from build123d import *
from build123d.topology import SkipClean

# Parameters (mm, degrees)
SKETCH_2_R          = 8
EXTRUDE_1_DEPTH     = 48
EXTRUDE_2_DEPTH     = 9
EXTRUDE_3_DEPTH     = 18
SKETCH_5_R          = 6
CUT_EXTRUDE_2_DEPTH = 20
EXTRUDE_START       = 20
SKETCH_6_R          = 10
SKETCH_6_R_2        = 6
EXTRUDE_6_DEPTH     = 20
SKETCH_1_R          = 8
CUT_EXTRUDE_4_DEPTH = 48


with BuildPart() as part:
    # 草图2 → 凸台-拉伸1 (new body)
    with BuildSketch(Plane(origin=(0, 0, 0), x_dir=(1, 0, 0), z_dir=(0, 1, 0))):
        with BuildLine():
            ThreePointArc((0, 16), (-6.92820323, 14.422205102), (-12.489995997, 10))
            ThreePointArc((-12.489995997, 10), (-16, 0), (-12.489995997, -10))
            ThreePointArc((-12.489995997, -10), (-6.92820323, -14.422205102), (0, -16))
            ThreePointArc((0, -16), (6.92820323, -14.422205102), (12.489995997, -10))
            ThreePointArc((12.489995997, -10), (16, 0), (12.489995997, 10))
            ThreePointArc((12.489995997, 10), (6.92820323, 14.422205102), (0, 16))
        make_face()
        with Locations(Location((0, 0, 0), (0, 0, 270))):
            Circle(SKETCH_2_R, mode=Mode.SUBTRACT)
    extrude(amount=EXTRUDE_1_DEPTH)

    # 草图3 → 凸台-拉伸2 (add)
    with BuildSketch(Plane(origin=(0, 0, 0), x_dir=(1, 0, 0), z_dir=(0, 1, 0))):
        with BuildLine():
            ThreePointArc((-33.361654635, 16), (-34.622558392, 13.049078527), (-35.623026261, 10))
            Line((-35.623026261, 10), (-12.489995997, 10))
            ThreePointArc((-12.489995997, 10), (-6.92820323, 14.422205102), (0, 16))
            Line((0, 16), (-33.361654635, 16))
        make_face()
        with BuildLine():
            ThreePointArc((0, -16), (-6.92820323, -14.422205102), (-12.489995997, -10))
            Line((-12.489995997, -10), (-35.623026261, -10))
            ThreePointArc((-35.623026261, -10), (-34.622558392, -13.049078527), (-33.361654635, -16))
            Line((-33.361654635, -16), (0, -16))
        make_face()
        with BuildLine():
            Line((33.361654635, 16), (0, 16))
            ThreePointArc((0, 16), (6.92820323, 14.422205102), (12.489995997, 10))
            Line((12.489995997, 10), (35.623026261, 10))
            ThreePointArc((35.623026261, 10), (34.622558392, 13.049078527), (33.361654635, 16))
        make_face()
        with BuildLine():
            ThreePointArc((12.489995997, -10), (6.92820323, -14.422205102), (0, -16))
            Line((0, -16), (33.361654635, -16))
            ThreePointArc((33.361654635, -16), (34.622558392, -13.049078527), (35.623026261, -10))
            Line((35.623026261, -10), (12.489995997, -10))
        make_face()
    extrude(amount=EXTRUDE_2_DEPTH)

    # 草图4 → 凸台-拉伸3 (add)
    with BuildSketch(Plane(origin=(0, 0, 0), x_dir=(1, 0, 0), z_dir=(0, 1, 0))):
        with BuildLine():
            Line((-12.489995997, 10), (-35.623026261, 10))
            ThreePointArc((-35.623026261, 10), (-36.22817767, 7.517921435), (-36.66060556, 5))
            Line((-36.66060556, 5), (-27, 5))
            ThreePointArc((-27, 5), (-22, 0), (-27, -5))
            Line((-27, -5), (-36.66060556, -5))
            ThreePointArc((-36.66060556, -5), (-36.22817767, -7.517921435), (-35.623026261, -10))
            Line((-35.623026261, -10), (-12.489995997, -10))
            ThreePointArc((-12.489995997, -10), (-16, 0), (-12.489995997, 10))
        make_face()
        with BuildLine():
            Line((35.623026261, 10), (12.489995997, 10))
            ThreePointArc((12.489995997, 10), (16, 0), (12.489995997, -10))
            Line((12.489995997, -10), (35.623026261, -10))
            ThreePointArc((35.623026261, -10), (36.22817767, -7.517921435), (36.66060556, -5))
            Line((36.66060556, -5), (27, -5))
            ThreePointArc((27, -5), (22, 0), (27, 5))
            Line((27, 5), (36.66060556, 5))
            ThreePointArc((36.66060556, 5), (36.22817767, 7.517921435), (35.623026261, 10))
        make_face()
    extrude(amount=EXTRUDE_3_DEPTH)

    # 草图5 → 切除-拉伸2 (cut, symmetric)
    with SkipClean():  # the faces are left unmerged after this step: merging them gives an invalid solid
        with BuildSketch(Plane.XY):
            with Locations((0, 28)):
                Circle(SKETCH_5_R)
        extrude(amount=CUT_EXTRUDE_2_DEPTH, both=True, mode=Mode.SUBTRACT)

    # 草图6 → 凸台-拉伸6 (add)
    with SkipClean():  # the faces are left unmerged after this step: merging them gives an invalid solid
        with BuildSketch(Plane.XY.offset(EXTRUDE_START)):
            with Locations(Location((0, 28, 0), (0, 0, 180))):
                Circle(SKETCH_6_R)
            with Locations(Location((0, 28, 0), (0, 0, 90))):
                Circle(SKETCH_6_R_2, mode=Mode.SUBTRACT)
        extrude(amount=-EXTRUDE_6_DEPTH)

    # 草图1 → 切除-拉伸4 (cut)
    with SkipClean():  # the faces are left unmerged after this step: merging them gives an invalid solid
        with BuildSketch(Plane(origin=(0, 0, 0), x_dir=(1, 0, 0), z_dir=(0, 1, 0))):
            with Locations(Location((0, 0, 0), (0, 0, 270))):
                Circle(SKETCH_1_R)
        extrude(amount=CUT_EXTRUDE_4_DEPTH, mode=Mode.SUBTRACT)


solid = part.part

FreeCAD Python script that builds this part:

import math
import FreeCAD as App
import Part
import Sketcher

V = App.Vector

doc = App.newDocument("Part")
body = doc.addObject("PartDesign::Body", "Body")

# Sketch on XZ plane
sketch1 = doc.addObject("Sketcher::SketchObject", "Sketch")
body.addObject(sketch1)
sketch1.AttachmentSupport = (doc.XZ_Plane, [""])
sketch1.MapMode = "FlatFace"
sketch1.addGeometry([
    Part.ArcOfCircle(Part.Circle(V(0, 0, 0), V(0, 0, 1), 16), math.radians(-141), math.radians(-90)),  # 0
    Part.ArcOfCircle(Part.Circle(V(0, 0, 0), V(0, 0, 1), 16), math.radians(141), math.radians(219)),  # 1
    Part.ArcOfCircle(Part.Circle(V(0, 0, 0), V(0, 0, 1), 16), math.radians(90), math.radians(141)),  # 2
    Part.ArcOfCircle(Part.Circle(V(0, 0, 0), V(0, 0, 1), 16), math.radians(39), math.radians(90)),  # 3
    Part.ArcOfCircle(Part.Circle(V(0, 0, 0), V(0, 0, 1), 16), math.radians(-39), math.radians(39)),  # 4
    Part.ArcOfCircle(Part.Circle(V(0, 0, 0), V(0, 0, 1), 16), math.radians(-90), math.radians(-39)),  # 5
    Part.Circle(V(0, 0, 0), V(0, 0, 1), 8),  # 6
], False)
sketch1.addConstraint([
    Sketcher.Constraint("Tangent", 0, 1, 1, 2),
    Sketcher.Constraint("Tangent", 1, 1, 2, 2),
    Sketcher.Constraint("Tangent", 2, 1, 3, 2),
    Sketcher.Constraint("Tangent", 3, 1, 4, 2),
    Sketcher.Constraint("Tangent", 4, 1, 5, 2),
    Sketcher.Constraint("Tangent", 5, 1, 0, 2),
    Sketcher.Constraint("Coincident", 0, 3, -1, 1),
    Sketcher.Constraint("Coincident", 2, 3, -1, 1),
    Sketcher.Constraint("Coincident", 6, 3, -1, 1),
    Sketcher.Constraint("Equal", 2, 3),
    Sketcher.Constraint("PointOnObject", 2, 1, -2),
    Sketcher.Constraint("PointOnObject", 5, 1, -2),
    Sketcher.Constraint("Horizontal", 1, 1, 3, 1),
    Sketcher.Constraint("Horizontal", 0, 1, 4, 1),
    Sketcher.Constraint("Vertical", 0, 1, 1, 1),
    Sketcher.Constraint("Diameter", 6, 16.0),
    Sketcher.Constraint("Radius", 0, 16.0),
    Sketcher.Constraint("DistanceY", 0, 1, -1, 1, 10.0),
])
pad1 = doc.addObject("PartDesign::Pad", "Pad")
body.addObject(pad1)
pad1.Profile = sketch1
pad1.Length = 48
pad1.Reversed = True

# Sketch on XZ plane
sketch2 = doc.addObject("Sketcher::SketchObject", "Sketch001")
body.addObject(sketch2)
sketch2.AttachmentSupport = (doc.XZ_Plane, [""])
sketch2.MapMode = "FlatFace"
sketch2.addGeometry([
    Part.ArcOfCircle(Part.Circle(V(0, 0, 0), V(0, 0, 1), 37), math.radians(-164.32), math.radians(-154.38)),  # 0
    Part.LineSegment(V(-36, -10, 0), V(-12, -10, 0)),  # 1
    Part.ArcOfCircle(Part.Circle(V(0, 0, 0), V(0, 0, 1), 16), math.radians(-141), math.radians(-90)),  # 2
    Part.LineSegment(V(0, -16, 0), V(-33, -16, 0)),  # 3
    Part.ArcOfCircle(Part.Circle(V(0, 0, 0), V(0, 0, 1), 16), math.radians(90), math.radians(141)),  # 4
    Part.LineSegment(V(-12, 10, 0), V(-36, 10, 0)),  # 5
    Part.ArcOfCircle(Part.Circle(V(0, 0, 0), V(0, 0, 1), 37), math.radians(154.38), math.radians(164.32)),  # 6
    Part.LineSegment(V(-33, 16, 0), V(0, 16, 0)),  # 7
    Part.LineSegment(V(33, -16, 0), V(0, -16, 0)),  # 8
    Part.ArcOfCircle(Part.Circle(V(0, 0, 0), V(0, 0, 1), 16), math.radians(-90), math.radians(-39)),  # 9
    Part.LineSegment(V(12, -10, 0), V(36, -10, 0)),  # 10
    Part.ArcOfCircle(Part.Circle(V(0, 0, 0), V(0, 0, 1), 37), math.radians(-25.62), math.radians(-15.68)),  # 11
    Part.ArcOfCircle(Part.Circle(V(0, 0, 0), V(0, 0, 1), 16), math.radians(39), math.radians(90)),  # 12
    Part.LineSegment(V(0, 16, 0), V(33, 16, 0)),  # 13
    Part.ArcOfCircle(Part.Circle(V(0, 0, 0), V(0, 0, 1), 37), math.radians(15.68), math.radians(25.62)),  # 14
    Part.LineSegment(V(36, 10, 0), V(12, 10, 0)),  # 15
], False)
sketch2.addConstraint([
    Sketcher.Constraint("Coincident", 0, 1, 1, 1),
    Sketcher.Constraint("Coincident", 1, 2, 2, 1),
    Sketcher.Constraint("Tangent", 2, 2, 3, 1),
    Sketcher.Constraint("Coincident", 3, 2, 0, 2),
    Sketcher.Constraint("Coincident", 4, 2, 5, 1),
    Sketcher.Constraint("Coincident", 5, 2, 6, 2),
    Sketcher.Constraint("Coincident", 6, 1, 7, 1),
    Sketcher.Constraint("Tangent", 7, 2, 4, 1),
    Sketcher.Constraint("Tangent", 8, 2, 9, 1),
    Sketcher.Constraint("Coincident", 9, 2, 10, 1),
    Sketcher.Constraint("Coincident", 10, 2, 11, 2),
    Sketcher.Constraint("Coincident", 11, 1, 8, 1),
    Sketcher.Constraint("Tangent", 12, 2, 13, 1),
    Sketcher.Constraint("Coincident", 13, 2, 14, 2),
    Sketcher.Constraint("Coincident", 14, 1, 15, 1),
    Sketcher.Constraint("Coincident", 15, 2, 12, 1),
    Sketcher.Constraint("Horizontal", 1),
    Sketcher.Constraint("Horizontal", 3),
    Sketcher.Constraint("Horizontal", 5),
    Sketcher.Constraint("Horizontal", 7),
    Sketcher.Constraint("Horizontal", 8),
    Sketcher.Constraint("Horizontal", 10),
    Sketcher.Constraint("Horizontal", 13),
    Sketcher.Constraint("Horizontal", 15),
    Sketcher.Constraint("Coincident", 0, 3, -1, 1),
    Sketcher.Constraint("Coincident", 2, 3, -1, 1),
    Sketcher.Constraint("Coincident", 4, 3, -1, 1),
    Sketcher.Constraint("Coincident", 6, 3, -1, 1),
    Sketcher.Constraint("Coincident", 9, 3, -1, 1),
    Sketcher.Constraint("Coincident", 11, 3, -1, 1),
    Sketcher.Constraint("Coincident", 12, 3, -1, 1),
    Sketcher.Constraint("Coincident", 14, 3, -1, 1),
    Sketcher.Constraint("Equal", 2, 4),
    Sketcher.Constraint("Equal", 0, 6),
    Sketcher.Constraint("Equal", 4, 9),
    Sketcher.Constraint("Equal", 6, 11),
    Sketcher.Constraint("Equal", 9, 12),
    Sketcher.Constraint("Equal", 11, 14),
    Sketcher.Constraint("Horizontal", 1, 2, 9, 2),
    Sketcher.Constraint("Horizontal", 5, 2, 14, 1),
    Sketcher.Constraint("Vertical", 1, 2, 4, 2),
    Sketcher.Constraint("Radius", 0, 37.0),
    Sketcher.Constraint("Radius", 2, 16.0),
    Sketcher.Constraint("DistanceY", 0, 1, -1, 1, 10.0),
])
pad2 = doc.addObject("PartDesign::Pad", "Pad001")
body.addObject(pad2)
pad2.Profile = sketch2
pad2.Length = 9
pad2.Reversed = True

# Sketch on XZ plane
sketch3 = doc.addObject("Sketcher::SketchObject", "Sketch002")
body.addObject(sketch3)
sketch3.AttachmentSupport = (doc.XZ_Plane, [""])
sketch3.MapMode = "FlatFace"
sketch3.addGeometry([
    Part.LineSegment(V(-12, -10, 0), V(-36, -10, 0)),  # 0
    Part.ArcOfCircle(Part.Circle(V(0, 0, 0), V(0, 0, 1), 37), math.radians(-172.23), math.radians(-164.32)),  # 1
    Part.LineSegment(V(-37, -5, 0), V(-27, -5, 0)),  # 2
    Part.ArcOfCircle(Part.Circle(V(-27, 0, 0), V(0, 0, 1), 5), math.radians(-90), math.radians(90)),  # 3
    Part.LineSegment(V(-27, 5, 0), V(-37, 5, 0)),  # 4
    Part.ArcOfCircle(Part.Circle(V(0, 0, 0), V(0, 0, 1), 37), math.radians(164.32), math.radians(172.23)),  # 5
    Part.LineSegment(V(-36, 10, 0), V(-12, 10, 0)),  # 6
    Part.ArcOfCircle(Part.Circle(V(0, 0, 0), V(0, 0, 1), 16), math.radians(141), math.radians(219)),  # 7
    Part.LineSegment(V(36, -10, 0), V(12, -10, 0)),  # 8
    Part.ArcOfCircle(Part.Circle(V(0, 0, 0), V(0, 0, 1), 16), math.radians(-39), math.radians(39)),  # 9
    Part.LineSegment(V(12, 10, 0), V(36, 10, 0)),  # 10
    Part.ArcOfCircle(Part.Circle(V(0, 0, 0), V(0, 0, 1), 37), math.radians(7.77), math.radians(15.68)),  # 11
    Part.LineSegment(V(37, 5, 0), V(27, 5, 0)),  # 12
    Part.ArcOfCircle(Part.Circle(V(27, 0, 0), V(0, 0, 1), 5), math.radians(90), math.radians(270)),  # 13
    Part.LineSegment(V(27, -5, 0), V(37, -5, 0)),  # 14
    Part.ArcOfCircle(Part.Circle(V(0, 0, 0), V(0, 0, 1), 37), math.radians(-15.68), math.radians(-7.77)),  # 15
], False)
sketch3.addConstraint([
    Sketcher.Constraint("Coincident", 0, 2, 1, 2),
    Sketcher.Constraint("Coincident", 1, 1, 2, 1),
    Sketcher.Constraint("Tangent", 2, 2, 3, 1),
    Sketcher.Constraint("Tangent", 3, 2, 4, 1),
    Sketcher.Constraint("Coincident", 4, 2, 5, 2),
    Sketcher.Constraint("Coincident", 5, 1, 6, 1),
    Sketcher.Constraint("Coincident", 6, 2, 7, 1),
    Sketcher.Constraint("Coincident", 7, 2, 0, 1),
    Sketcher.Constraint("Coincident", 8, 2, 9, 1),
    Sketcher.Constraint("Coincident", 9, 2, 10, 1),
    Sketcher.Constraint("Coincident", 10, 2, 11, 2),
    Sketcher.Constraint("Coincident", 11, 1, 12, 1),
    Sketcher.Constraint("Tangent", 12, 2, 13, 1),
    Sketcher.Constraint("Tangent", 13, 2, 14, 1),
    Sketcher.Constraint("Coincident", 14, 2, 15, 2),
    Sketcher.Constraint("Coincident", 15, 1, 8, 1),
    Sketcher.Constraint("Horizontal", 0),
    Sketcher.Constraint("Horizontal", 2),
    Sketcher.Constraint("Horizontal", 4),
    Sketcher.Constraint("Horizontal", 6),
    Sketcher.Constraint("Horizontal", 8),
    Sketcher.Constraint("Horizontal", 10),
    Sketcher.Constraint("Horizontal", 12),
    Sketcher.Constraint("Horizontal", 14),
    Sketcher.Constraint("Coincident", 1, 3, -1, 1),
    Sketcher.Constraint("Coincident", 5, 3, -1, 1),
    Sketcher.Constraint("Coincident", 7, 3, -1, 1),
    Sketcher.Constraint("Coincident", 9, 3, -1, 1),
    Sketcher.Constraint("Coincident", 11, 3, -1, 1),
    Sketcher.Constraint("Coincident", 15, 3, -1, 1),
    Sketcher.Constraint("Equal", 1, 5),
    Sketcher.Constraint("Equal", 7, 9),
    Sketcher.Constraint("Equal", 5, 11),
    Sketcher.Constraint("Equal", 3, 13),
    Sketcher.Constraint("Equal", 11, 15),
    Sketcher.Constraint("Symmetric", 3, 3, 13, 3, -1, 1),
    Sketcher.Constraint("PointOnObject", 3, 3, -1),
    Sketcher.Constraint("Horizontal", 7, 2, 8, 2),
    Sketcher.Constraint("Horizontal", 6, 2, 9, 2),
    Sketcher.Constraint("Vertical", 0, 2, 5, 1),
    Sketcher.Constraint("Radius", 1, 37.0),
    Sketcher.Constraint("Radius", 3, 5.0),
    Sketcher.Constraint("Radius", 7, 16.0),
    Sketcher.Constraint("DistanceX", 3, 3, -1, 1, 27.0),
    Sketcher.Constraint("DistanceY", 0, 2, -1, 1, 10.0),
])
pad3 = doc.addObject("PartDesign::Pad", "Pad002")
body.addObject(pad3)
pad3.Profile = sketch3
pad3.Length = 18
pad3.Reversed = True

# Sketch on XY plane
sketch4 = doc.addObject("Sketcher::SketchObject", "Sketch003")
body.addObject(sketch4)
sketch4.AttachmentSupport = (doc.XY_Plane, [""])
sketch4.MapMode = "FlatFace"
sketch4.addGeometry(Part.Circle(V(0, 28, 0), V(0, 0, 1), 6), False)
sketch4.addConstraint([
    Sketcher.Constraint("PointOnObject", 0, 3, -2),
    Sketcher.Constraint("Diameter", 0, 12.0),
    Sketcher.Constraint("DistanceY", -1, 1, 0, 3, 28.0),
])
pocket1 = doc.addObject("PartDesign::Pocket", "Pocket")
body.addObject(pocket1)
pocket1.Profile = sketch4
pocket1.Length = 40
pocket1.Midplane = True

# Sketch on XY plane
sketch5 = doc.addObject("Sketcher::SketchObject", "Sketch004")
body.addObject(sketch5)
sketch5.AttachmentSupport = (doc.XY_Plane, [""])
sketch5.MapMode = "FlatFace"
sketch5.AttachmentOffset = App.Placement(V(0, 0, 20), App.Rotation())
sketch5.addGeometry([
    Part.Circle(V(0, 28, 0), V(0, 0, 1), 10),
    Part.Circle(V(0, 28, 0), V(0, 0, 1), 6),
], False)
sketch5.addConstraint([
    Sketcher.Constraint("Coincident", 1, 3, 0, 3),
    Sketcher.Constraint("PointOnObject", 0, 3, -2),
    Sketcher.Constraint("Diameter", 0, 20.0),
    Sketcher.Constraint("Diameter", 1, 12.0),
    Sketcher.Constraint("DistanceY", -1, 1, 0, 3, 28.0),
])
pad4 = doc.addObject("PartDesign::Pad", "Pad003")
body.addObject(pad4)
pad4.Profile = sketch5
pad4.Length = 20
pad4.Reversed = True

# Sketch on XZ plane
sketch6 = doc.addObject("Sketcher::SketchObject", "Sketch005")
body.addObject(sketch6)
sketch6.AttachmentSupport = (doc.XZ_Plane, [""])
sketch6.MapMode = "FlatFace"
sketch6.addGeometry(Part.Circle(V(0, 0, 0), V(0, 0, 1), 8), False)
sketch6.addConstraint([
    Sketcher.Constraint("Coincident", 0, 3, -1, 1),
    Sketcher.Constraint("Diameter", 0, 16.0),
])
pocket2 = doc.addObject("PartDesign::Pocket", "Pocket001")
body.addObject(pocket2)
pocket2.Profile = sketch6
pocket2.Length = 48

doc.recompute()
